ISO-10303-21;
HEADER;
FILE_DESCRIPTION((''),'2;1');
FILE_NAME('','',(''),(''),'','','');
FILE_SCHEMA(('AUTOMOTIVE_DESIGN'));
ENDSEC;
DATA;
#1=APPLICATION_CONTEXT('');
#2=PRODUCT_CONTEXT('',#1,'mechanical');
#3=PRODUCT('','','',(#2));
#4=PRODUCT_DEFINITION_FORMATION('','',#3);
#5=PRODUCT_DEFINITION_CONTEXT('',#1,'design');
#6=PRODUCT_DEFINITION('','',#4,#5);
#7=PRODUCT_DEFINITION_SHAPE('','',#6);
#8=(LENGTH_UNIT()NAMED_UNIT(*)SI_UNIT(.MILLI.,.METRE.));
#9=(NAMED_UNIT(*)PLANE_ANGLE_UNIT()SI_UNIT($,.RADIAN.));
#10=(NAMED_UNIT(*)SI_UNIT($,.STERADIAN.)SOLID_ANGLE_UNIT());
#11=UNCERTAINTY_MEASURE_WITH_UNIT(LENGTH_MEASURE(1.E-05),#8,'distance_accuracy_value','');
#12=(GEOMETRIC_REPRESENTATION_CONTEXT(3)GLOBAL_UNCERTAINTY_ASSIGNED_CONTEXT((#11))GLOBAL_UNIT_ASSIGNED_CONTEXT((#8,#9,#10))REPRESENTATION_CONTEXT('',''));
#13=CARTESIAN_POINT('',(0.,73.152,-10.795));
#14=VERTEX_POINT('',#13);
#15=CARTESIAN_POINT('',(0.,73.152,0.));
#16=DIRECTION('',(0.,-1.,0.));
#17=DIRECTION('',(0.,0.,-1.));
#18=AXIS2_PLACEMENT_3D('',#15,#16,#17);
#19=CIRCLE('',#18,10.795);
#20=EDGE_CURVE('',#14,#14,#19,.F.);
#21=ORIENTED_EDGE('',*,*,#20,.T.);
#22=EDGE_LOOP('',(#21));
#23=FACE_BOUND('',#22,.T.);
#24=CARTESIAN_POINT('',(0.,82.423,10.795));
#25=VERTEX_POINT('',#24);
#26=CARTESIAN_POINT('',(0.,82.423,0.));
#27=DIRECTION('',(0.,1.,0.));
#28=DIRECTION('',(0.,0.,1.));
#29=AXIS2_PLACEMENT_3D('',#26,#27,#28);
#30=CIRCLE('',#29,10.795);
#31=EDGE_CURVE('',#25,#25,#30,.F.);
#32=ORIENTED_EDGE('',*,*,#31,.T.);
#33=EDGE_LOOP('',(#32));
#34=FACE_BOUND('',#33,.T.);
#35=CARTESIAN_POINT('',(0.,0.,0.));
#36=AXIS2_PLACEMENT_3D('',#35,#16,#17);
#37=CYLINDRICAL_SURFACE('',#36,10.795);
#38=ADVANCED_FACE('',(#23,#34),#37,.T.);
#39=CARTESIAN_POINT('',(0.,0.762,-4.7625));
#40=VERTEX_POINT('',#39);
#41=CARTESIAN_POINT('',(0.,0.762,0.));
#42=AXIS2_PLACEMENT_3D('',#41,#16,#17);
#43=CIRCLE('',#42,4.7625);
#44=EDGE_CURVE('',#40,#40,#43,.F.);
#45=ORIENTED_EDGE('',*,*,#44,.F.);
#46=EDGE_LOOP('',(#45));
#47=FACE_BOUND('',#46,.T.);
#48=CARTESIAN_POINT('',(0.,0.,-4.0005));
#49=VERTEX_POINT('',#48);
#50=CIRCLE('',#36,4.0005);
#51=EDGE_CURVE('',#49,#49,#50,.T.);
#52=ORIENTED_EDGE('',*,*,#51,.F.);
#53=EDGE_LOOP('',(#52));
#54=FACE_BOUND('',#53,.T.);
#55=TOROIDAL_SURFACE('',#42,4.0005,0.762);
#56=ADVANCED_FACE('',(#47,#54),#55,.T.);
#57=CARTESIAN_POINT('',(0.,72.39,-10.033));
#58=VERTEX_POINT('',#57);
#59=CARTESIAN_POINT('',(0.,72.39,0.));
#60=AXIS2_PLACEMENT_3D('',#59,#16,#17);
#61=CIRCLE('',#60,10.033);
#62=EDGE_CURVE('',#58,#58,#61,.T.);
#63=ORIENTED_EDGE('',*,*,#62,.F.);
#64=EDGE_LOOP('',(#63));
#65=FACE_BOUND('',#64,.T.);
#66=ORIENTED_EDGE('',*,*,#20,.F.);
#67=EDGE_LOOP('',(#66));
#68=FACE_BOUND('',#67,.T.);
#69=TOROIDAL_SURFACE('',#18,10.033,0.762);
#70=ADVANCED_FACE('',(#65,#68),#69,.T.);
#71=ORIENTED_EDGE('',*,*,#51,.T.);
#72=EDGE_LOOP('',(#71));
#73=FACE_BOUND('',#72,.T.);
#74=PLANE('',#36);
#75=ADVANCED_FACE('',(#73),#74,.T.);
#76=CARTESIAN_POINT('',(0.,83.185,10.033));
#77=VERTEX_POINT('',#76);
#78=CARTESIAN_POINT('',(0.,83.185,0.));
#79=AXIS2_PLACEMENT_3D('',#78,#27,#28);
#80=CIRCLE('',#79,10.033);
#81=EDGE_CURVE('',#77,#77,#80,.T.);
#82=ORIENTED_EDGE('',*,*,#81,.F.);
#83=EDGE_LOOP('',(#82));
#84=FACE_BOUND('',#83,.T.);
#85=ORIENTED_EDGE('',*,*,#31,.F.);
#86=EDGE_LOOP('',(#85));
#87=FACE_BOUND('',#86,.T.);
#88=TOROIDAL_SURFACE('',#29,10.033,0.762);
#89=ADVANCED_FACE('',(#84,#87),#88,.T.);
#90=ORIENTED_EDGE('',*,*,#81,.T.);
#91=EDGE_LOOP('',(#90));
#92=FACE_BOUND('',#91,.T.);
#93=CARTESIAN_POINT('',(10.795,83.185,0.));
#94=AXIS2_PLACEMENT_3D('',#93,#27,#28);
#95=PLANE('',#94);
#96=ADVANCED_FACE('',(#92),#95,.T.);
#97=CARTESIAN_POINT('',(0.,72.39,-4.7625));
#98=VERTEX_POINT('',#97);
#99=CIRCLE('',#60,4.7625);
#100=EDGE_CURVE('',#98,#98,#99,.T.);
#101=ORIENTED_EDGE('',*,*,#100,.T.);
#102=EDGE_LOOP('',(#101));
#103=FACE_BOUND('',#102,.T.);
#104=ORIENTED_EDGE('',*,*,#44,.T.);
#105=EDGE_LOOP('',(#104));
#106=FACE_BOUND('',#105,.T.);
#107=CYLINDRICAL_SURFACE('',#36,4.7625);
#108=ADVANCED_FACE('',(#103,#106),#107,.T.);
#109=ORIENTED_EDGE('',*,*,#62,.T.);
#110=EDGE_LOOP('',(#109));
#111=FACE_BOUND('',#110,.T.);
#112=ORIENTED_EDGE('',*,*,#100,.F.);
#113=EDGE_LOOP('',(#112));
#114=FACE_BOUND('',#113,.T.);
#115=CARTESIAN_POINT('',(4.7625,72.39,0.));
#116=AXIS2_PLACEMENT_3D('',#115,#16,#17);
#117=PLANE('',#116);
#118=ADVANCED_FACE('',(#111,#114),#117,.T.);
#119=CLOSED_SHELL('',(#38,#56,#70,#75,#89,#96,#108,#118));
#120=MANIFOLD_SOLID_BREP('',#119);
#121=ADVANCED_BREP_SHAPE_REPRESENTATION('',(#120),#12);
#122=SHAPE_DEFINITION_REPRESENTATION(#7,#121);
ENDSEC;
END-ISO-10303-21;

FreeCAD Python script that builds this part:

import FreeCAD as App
import Part
import Sketcher
from FreeCAD import Vector
Q = App.Units.Quantity


def edges_at(feature, points):
    """Names of the edges that pass closest to the given points."""
    edges = feature.Shape.Edges
    near = lambda p: min(range(len(edges)), key=lambda i: edges[i].distToShape(Part.Vertex(*p))[0])
    return sorted({f"Edge{near(p) + 1}" for p in points})

doc = App.newDocument("Part")
body = doc.addObject("PartDesign::Body", "Body")

sketch1 = doc.addObject("Sketcher::SketchObject", "Sketch")
body.addObject(sketch1)
sketch1.AttachmentSupport = (doc.XY_Plane, [""])
sketch1.MapMode = "FlatFace"
sketch1.addGeometry([
    Part.LineSegment(Vector(0, 0, 0), Vector(4.8, 0, 0)),
    Part.LineSegment(Vector(4.8, 0, 0), Vector(4.8, 72.4, 0)),
    Part.LineSegment(Vector(4.8, 72.4, 0), Vector(10.8, 72.4, 0)),
    Part.LineSegment(Vector(10.8, 72.4, 0), Vector(10.8, 83.2, 0)),
    Part.LineSegment(Vector(10.8, 83.2, 0), Vector(0, 83.2, 0)),
    Part.LineSegment(Vector(0, 83.2, 0), Vector(0, 0, 0)),
], False)
sketch1.addConstraint([
    Sketcher.Constraint("Coincident", 0, 2, 1, 1),
    Sketcher.Constraint("Coincident", 1, 2, 2, 1),
    Sketcher.Constraint("Coincident", 2, 2, 3, 1),
    Sketcher.Constraint("Coincident", 3, 2, 4, 1),
    Sketcher.Constraint("Coincident", 4, 2, 5, 1),
    Sketcher.Constraint("Coincident", 5, 2, 0, 1),
    Sketcher.Constraint("Horizontal", 0),
    Sketcher.Constraint("Vertical", 1),
    Sketcher.Constraint("Horizontal", 2),
    Sketcher.Constraint("Vertical", 3),
    Sketcher.Constraint("Horizontal", 4),
    Sketcher.Constraint("Vertical", 5),
    Sketcher.Constraint("Coincident", 5, 2, -1, 1),
    Sketcher.Constraint("Equal", 4, 3),
    Sketcher.Constraint("DistanceY", 1, 1, 1, 2, Q("2.85 in")),
    Sketcher.Constraint("DistanceX", 0, 1, 0, 2, Q("0.1875 in")),
    Sketcher.Constraint("DistanceX", 4, 2, 4, 1, Q("0.425 in")),
])
revolution = doc.addObject("PartDesign::Revolution", "Revolution")
body.addObject(revolution)
revolution.Profile = sketch1
revolution.ReferenceAxis = (sketch1, ["V_Axis"])
revolution.Angle = 360
doc.recompute()

fillet = doc.addObject("PartDesign::Fillet", "Fillet")
body.addObject(fillet)
fillet.Base = (revolution, edges_at(revolution, [(0, 83.185, 10.795), (0, 72.39, 10.795), (0, 0, 4.763)]))
fillet.Radius = Q("0.03 in")

doc.recompute()
